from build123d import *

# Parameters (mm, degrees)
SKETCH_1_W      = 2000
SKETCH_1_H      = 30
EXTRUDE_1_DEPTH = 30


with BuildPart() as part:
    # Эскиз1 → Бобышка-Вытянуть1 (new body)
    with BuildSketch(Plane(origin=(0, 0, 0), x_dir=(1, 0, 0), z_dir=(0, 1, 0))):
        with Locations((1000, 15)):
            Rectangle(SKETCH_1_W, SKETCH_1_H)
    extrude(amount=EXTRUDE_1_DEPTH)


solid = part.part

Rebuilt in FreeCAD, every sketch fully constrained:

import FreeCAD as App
import Part
import Sketcher
Q = App.Units.Quantity

doc = App.newDocument("Part")
body = doc.addObject("PartDesign::Body", "Body")

sketch1 = doc.addObject("Sketcher::SketchObject", "Sketch")
body.addObject(sketch1)
sketch1.AttachmentSupport = (doc.XZ_Plane, [""])
sketch1.MapMode = "FlatFace"
sketch1.addGeometry(Part.LineSegment(App.Vector(0, -30, 0), App.Vector(0, 0, 0)), False)
sketch1.addGeometry(Part.LineSegment(App.Vector(0, 0, 0), App.Vector(2000, 0, 0)), False)
sketch1.addGeometry(Part.LineSegment(App.Vector(2000, 0, 0), App.Vector(2000, -30, 0)), False)
sketch1.addGeometry(Part.LineSegment(App.Vector(2000, -30, 0), App.Vector(0, -30, 0)), False)
sketch1.addConstraint(Sketcher.Constraint("Coincident", 0, 2, 1, 1))
sketch1.addConstraint(Sketcher.Constraint("Coincident", 1, 2, 2, 1))
sketch1.addConstraint(Sketcher.Constraint("Coincident", 2, 2, 3, 1))
sketch1.addConstraint(Sketcher.Constraint("Coincident", 3, 2, 0, 1))
sketch1.addConstraint(Sketcher.Constraint("Vertical", 0))
sketch1.addConstraint(Sketcher.Constraint("Horizontal", 1))
sketch1.addConstraint(Sketcher.Constraint("Vertical", 2))
sketch1.addConstraint(Sketcher.Constraint("Horizontal", 3))
sketch1.addConstraint(Sketcher.Constraint("Coincident", 0, 2, -1, 1))
sketch1.addConstraint(Sketcher.Constraint("DistanceX", 1, 1, 1, 2, Q("2000 mm")))
sketch1.addConstraint(Sketcher.Constraint("DistanceY", 0, 1, 0, 2, Q("30 mm")))
pad1 = doc.addObject("PartDesign::Pad", "Pad")
body.addObject(pad1)
pad1.Profile = sketch1
pad1.Length = 30
pad1.Reversed = True

doc.recompute()
